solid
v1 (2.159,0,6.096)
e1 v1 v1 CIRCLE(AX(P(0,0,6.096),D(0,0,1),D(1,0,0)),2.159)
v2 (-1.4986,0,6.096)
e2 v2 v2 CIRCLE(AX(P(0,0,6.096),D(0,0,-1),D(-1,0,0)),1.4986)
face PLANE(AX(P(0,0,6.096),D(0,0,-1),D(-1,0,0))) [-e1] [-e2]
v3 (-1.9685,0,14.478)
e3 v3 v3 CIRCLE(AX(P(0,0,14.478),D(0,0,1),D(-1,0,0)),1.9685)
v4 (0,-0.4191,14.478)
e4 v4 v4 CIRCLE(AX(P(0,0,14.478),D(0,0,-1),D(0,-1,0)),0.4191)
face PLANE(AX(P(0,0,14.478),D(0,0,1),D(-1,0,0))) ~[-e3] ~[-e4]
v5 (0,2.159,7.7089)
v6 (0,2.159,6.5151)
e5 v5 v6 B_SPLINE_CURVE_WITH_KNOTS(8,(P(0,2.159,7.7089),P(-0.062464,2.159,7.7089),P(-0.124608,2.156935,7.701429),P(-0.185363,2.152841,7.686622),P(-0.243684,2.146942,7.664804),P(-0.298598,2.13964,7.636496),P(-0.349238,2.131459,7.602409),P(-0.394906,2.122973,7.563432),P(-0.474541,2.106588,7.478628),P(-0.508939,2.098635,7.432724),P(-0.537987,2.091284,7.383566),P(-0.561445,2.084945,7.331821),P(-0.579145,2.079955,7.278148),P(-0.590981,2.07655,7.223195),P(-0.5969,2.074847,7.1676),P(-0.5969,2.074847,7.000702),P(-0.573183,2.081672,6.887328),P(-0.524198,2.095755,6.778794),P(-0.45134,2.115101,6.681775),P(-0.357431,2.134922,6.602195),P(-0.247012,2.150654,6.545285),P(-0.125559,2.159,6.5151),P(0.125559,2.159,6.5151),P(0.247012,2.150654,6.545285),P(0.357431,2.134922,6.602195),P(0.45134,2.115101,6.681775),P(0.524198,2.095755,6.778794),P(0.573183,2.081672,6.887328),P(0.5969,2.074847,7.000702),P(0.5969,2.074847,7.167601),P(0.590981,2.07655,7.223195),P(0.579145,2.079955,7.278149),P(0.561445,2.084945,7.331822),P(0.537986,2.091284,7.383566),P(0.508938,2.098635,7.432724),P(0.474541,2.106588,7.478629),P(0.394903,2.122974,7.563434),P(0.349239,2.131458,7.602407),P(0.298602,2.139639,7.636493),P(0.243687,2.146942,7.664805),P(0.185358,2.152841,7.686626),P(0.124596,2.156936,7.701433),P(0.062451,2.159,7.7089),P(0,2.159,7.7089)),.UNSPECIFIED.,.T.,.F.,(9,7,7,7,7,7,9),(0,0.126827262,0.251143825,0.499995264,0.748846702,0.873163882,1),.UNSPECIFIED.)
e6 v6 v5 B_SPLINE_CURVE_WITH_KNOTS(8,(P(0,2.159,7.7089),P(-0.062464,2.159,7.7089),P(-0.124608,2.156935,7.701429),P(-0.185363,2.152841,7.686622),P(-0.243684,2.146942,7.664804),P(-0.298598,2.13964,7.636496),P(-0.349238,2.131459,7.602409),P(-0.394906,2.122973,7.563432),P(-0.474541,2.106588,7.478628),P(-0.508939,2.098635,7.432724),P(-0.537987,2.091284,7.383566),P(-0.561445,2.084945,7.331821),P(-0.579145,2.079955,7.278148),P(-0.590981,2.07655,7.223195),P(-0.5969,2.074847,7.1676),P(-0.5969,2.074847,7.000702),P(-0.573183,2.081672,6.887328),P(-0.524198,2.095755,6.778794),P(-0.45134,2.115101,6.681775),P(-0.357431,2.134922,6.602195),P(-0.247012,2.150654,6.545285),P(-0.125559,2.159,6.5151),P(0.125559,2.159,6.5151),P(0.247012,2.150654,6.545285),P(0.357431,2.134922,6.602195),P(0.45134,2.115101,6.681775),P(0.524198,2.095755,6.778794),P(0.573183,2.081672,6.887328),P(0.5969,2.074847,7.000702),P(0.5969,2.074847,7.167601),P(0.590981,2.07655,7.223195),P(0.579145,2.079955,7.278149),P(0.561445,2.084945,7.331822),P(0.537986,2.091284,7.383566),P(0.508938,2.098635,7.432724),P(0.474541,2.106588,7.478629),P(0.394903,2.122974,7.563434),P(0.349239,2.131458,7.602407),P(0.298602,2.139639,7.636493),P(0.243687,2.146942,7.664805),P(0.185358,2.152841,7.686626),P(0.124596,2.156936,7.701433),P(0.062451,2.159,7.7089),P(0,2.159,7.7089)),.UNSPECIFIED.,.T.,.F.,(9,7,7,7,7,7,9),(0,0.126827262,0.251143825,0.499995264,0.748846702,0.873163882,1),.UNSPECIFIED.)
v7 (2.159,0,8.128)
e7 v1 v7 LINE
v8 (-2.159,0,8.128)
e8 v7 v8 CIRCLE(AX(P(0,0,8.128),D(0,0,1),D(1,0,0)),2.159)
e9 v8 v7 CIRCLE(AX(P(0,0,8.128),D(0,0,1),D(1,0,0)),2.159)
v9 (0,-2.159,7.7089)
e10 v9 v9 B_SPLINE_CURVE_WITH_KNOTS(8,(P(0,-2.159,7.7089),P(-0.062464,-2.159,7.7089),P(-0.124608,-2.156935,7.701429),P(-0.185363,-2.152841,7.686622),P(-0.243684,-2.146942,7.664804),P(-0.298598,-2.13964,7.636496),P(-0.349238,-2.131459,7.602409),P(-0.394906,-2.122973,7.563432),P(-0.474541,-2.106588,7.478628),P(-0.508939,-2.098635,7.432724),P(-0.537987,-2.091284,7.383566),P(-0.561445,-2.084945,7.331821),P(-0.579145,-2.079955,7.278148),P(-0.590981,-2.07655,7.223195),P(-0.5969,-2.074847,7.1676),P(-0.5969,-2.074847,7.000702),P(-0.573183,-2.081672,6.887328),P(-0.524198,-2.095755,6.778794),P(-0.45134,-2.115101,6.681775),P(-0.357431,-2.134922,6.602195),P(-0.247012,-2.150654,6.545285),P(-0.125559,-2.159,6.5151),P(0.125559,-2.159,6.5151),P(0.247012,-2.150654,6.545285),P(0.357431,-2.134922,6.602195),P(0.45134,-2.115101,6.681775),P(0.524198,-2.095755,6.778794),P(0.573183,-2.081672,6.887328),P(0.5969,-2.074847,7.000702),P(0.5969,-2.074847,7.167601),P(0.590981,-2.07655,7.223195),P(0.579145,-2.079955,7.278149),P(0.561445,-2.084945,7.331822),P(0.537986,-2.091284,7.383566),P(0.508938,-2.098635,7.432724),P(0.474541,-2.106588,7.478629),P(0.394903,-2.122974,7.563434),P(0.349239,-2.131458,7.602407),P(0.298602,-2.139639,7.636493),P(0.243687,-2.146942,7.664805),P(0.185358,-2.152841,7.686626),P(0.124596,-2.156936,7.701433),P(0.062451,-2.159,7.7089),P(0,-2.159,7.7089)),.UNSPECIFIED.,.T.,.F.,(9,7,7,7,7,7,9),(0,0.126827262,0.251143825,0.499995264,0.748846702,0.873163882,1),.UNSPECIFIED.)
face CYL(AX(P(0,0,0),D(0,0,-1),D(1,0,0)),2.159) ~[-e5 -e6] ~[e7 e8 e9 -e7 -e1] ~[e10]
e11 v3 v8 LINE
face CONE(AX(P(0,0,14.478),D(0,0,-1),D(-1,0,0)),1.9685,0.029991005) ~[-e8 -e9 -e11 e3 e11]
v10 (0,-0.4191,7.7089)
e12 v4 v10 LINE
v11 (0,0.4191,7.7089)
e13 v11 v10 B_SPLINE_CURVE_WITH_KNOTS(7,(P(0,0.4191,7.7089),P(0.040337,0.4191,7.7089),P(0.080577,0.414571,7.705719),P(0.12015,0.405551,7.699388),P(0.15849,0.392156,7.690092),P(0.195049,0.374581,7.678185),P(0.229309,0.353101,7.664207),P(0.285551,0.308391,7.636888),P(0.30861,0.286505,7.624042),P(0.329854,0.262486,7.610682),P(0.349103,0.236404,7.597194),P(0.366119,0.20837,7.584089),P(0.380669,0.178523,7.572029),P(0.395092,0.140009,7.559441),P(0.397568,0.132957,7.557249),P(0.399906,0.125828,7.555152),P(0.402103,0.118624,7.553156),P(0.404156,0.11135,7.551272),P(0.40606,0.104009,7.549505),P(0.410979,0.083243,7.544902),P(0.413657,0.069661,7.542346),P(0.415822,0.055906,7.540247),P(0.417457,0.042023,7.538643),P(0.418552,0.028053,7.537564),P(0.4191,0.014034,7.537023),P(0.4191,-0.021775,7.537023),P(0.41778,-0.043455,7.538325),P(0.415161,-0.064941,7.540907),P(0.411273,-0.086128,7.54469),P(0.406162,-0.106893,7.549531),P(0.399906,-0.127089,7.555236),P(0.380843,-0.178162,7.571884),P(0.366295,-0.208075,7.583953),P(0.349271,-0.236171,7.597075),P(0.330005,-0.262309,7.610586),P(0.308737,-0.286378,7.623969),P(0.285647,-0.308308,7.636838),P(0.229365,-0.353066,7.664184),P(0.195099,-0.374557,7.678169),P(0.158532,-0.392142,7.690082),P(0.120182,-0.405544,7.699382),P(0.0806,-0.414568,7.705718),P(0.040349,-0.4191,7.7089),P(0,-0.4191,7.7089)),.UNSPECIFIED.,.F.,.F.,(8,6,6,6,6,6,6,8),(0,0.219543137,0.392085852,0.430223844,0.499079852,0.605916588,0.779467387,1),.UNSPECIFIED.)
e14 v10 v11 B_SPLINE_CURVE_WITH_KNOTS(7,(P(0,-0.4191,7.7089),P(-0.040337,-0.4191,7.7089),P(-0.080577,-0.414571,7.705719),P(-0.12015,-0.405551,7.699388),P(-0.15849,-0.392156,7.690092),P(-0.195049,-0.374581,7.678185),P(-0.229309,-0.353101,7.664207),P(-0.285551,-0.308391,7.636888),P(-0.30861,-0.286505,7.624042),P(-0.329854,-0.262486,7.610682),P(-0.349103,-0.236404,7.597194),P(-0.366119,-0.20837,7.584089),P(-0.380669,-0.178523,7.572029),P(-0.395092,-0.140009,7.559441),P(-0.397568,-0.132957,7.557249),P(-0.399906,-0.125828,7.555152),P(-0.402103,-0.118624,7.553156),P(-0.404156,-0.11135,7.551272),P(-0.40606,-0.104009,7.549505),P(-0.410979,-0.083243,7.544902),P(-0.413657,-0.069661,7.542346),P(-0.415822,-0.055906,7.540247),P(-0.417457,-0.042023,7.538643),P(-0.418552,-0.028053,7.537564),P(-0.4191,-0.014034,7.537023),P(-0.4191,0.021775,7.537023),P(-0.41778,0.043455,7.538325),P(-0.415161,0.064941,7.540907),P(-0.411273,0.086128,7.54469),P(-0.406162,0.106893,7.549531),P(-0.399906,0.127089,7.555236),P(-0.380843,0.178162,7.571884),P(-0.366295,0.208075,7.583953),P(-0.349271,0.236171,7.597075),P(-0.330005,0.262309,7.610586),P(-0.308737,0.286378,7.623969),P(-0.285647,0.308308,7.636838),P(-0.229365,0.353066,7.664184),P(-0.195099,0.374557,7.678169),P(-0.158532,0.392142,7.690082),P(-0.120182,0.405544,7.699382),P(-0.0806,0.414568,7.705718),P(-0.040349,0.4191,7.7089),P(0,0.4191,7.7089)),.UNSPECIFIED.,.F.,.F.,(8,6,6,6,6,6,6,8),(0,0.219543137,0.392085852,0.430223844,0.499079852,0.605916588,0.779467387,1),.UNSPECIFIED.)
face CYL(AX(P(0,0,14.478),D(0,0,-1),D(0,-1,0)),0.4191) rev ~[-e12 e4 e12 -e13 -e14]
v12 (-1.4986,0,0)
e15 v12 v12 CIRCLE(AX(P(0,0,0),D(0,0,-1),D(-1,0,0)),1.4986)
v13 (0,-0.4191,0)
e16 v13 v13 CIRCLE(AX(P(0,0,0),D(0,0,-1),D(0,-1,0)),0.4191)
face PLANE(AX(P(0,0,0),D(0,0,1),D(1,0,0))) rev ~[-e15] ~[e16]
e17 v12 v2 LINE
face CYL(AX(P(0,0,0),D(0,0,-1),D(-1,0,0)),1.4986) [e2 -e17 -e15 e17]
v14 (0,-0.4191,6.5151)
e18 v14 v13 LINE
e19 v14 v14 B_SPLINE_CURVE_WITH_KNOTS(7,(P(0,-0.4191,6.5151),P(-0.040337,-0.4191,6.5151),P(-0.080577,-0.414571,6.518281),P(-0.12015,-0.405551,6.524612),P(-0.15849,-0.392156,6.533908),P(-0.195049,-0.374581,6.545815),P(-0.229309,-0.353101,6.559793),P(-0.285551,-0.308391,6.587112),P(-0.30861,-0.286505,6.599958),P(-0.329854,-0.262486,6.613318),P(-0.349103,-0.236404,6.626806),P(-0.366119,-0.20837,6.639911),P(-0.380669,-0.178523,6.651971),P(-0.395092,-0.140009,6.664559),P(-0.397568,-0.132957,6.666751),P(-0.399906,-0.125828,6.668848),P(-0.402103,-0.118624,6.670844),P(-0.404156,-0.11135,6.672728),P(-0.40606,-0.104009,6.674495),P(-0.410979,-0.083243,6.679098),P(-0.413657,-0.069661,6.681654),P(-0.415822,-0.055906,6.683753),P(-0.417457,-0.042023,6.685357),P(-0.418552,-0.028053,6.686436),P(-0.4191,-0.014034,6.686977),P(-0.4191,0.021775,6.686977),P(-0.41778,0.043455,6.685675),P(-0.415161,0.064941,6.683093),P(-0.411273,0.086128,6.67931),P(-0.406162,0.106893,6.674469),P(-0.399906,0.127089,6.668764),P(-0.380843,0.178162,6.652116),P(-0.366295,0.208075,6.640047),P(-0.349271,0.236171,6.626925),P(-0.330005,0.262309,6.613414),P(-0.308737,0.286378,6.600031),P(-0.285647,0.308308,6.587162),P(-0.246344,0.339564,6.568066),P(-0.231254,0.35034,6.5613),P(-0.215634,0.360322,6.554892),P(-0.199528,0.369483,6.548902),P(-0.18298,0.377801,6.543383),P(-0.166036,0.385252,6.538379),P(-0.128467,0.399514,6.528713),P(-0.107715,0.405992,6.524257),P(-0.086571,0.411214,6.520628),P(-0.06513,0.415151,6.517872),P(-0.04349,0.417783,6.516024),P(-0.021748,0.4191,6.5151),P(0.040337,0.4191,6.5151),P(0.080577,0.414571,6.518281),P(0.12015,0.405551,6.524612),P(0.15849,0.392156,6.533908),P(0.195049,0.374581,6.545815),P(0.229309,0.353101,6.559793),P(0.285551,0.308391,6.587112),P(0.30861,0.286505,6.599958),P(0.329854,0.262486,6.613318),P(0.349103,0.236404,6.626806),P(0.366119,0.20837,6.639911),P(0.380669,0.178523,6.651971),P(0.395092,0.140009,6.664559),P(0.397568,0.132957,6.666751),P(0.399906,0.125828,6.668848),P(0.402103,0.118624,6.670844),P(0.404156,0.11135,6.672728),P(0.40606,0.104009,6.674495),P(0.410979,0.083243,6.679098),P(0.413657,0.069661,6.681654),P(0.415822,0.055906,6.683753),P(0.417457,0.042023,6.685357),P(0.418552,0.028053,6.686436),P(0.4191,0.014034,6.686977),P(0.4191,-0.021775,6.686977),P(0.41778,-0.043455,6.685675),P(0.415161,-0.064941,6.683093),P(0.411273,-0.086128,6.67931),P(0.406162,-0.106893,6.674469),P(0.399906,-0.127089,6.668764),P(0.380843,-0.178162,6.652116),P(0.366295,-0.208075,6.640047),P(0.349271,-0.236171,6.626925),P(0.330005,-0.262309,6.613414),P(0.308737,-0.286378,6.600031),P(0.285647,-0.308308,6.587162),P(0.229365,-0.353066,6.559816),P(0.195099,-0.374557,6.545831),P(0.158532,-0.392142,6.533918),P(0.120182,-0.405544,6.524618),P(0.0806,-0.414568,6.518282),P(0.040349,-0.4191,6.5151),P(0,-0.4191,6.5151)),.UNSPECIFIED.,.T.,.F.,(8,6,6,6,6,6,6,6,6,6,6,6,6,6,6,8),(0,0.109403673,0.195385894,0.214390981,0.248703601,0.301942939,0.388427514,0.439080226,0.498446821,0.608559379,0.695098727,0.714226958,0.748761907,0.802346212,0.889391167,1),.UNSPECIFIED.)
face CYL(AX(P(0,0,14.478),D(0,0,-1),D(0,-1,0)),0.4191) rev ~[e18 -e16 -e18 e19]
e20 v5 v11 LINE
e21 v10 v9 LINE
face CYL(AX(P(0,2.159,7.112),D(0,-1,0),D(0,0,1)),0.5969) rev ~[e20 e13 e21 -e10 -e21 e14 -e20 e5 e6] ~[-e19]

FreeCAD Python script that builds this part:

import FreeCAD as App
import Part
import Sketcher
from FreeCAD import Vector
Q = App.Units.Quantity


def add_polygon(sketch, points):
    """Adds a closed chain of lines whose ends are joined by coincident constraints."""
    first, n = sketch.GeometryCount, len(points)
    for a, b in zip(points, points[1:] + points[:1]):
        sketch.addGeometry(Part.LineSegment(App.Vector(*a, 0), App.Vector(*b, 0)), False)
    for i in range(n):
        sketch.addConstraint(Sketcher.Constraint("Coincident", first + i, 2, first + (i + 1) % n, 1))

doc = App.newDocument("Part")
body = doc.addObject("PartDesign::Body", "Body")

# Sketch on XY plane
sketch1 = body.newObject("Sketcher::SketchObject", "Sketch")
sketch1.AttachmentSupport = (doc.getObject("XY_Plane"), [""])
sketch1.MapMode = "FlatFace"
sketch1.addGeometry(Part.Circle(Vector(0, 0, 0), Vector(0, 0, 1), 2.159), False)
sketch1.addConstraint([
    Sketcher.Constraint("Coincident", 0, 3, -1, 1),
    Sketcher.Constraint("Diameter", 0, Q("0.17 in")),
])
pad1 = body.newObject("PartDesign::Pad", "Pad")
pad1.Profile = sketch1
pad1.Length = Q("0.32 in")

# Sketch on XY plane
sketch2 = body.newObject("Sketcher::SketchObject", "Sketch001")
sketch2.AttachmentSupport = (doc.getObject("XY_Plane"), [""])
sketch2.MapMode = "FlatFace"
sketch2.addGeometry([
    Part.Circle(Vector(0, 0, 0), Vector(0, 0, 1), 2.159),
    Part.Circle(Vector(0, 0, 0), Vector(0, 0, 1), 1.4986),
], False)
sketch2.addConstraint([
    Sketcher.Constraint("Coincident", 0, 3, -1, 1),
    Sketcher.Constraint("Coincident", 1, 3, -1, 1),
    Sketcher.Constraint("Diameter", 1, Q("0.118 in")),
    Sketcher.Constraint("Diameter", 0, Q("0.17 in")),
])
pocket1 = body.newObject("PartDesign::Pocket", "Pocket")
pocket1.Profile = sketch2
pocket1.Length = Q("0.24 in")
pocket1.Reversed = True

# Sketch on XZ plane
sketch3 = body.newObject("Sketcher::SketchObject", "Sketch002")
sketch3.AttachmentSupport = (doc.getObject("XZ_Plane"), [""])
sketch3.MapMode = "FlatFace"
add_polygon(sketch3, [(0, 14.478), (0, 8.128), (-2.159, 8.128), (-1.9685, 14.478)])  # lines 0-3
sketch3.addConstraint([
    Sketcher.Constraint("Vertical", 0),
    Sketcher.Constraint("Horizontal", 1),
    Sketcher.Constraint("Horizontal", 3),
    Sketcher.Constraint("PointOnObject", 0, 2, -2),
    Sketcher.Constraint("DistanceY", 0, 2, 0, 1, Q("0.25 in")),
    Sketcher.Constraint("DistanceY", -1, 1, 0, 2, Q("0.32 in")),
    Sketcher.Constraint("DistanceX", 3, 1, 3, 2, Q("0.0775 in")),
    Sketcher.Constraint("DistanceX", 1, 2, 1, 1, Q("0.085 in")),
])
revolution = body.newObject("PartDesign::Revolution", "Revolution")
revolution.Profile = sketch3
revolution.ReferenceAxis = (sketch3, ["V_Axis"])
revolution.Angle = 360

# Sketch on XY plane
sketch4 = body.newObject("Sketcher::SketchObject", "Sketch003")
sketch4.AttachmentSupport = (doc.getObject("XY_Plane"), [""])
sketch4.MapMode = "FlatFace"
sketch4.AttachmentOffset = App.Placement(Vector(0, 0, 0.57 * 25.4), App.Rotation())
sketch4.addGeometry(Part.Circle(Vector(0, 0, 0), Vector(0, 0, 1), 0.4191), False)
sketch4.addConstraint([
    Sketcher.Constraint("Coincident", 0, 3, -1, 1),
    Sketcher.Constraint("Diameter", 0, Q("0.033 in")),
])
doc.recompute()
hole = body.newObject("PartDesign::Hole", "Hole")
hole.Profile = sketch4
hole.ThreadType = "None"
hole.Diameter = Q("0.033 in")
hole.DepthType = "ThroughAll"

# Sketch on XZ plane
sketch5 = body.newObject("Sketcher::SketchObject", "Sketch004")
sketch5.AttachmentSupport = (doc.getObject("XZ_Plane"), [""])
sketch5.MapMode = "FlatFace"
sketch5.AttachmentOffset = App.Placement(Vector(0, 0, -0.085 * 25.4), App.Rotation())
sketch5.addGeometry(Part.Circle(Vector(0, 7.112, 0), Vector(0, 0, 1), 0.5969), False)
sketch5.addConstraint([
    Sketcher.Constraint("PointOnObject", 0, 3, -2),
    Sketcher.Constraint("Diameter", 0, Q("0.047 in")),
    Sketcher.Constraint("DistanceY", -1, 1, 0, 3, Q("0.28 in")),
])
doc.recompute()
hole2 = body.newObject("PartDesign::Hole", "Hole001")
hole2.Profile = sketch5
hole2.ThreadType = "None"
hole2.Diameter = Q("0.047 in")
hole2.DepthType = "ThroughAll"
hole2.Reversed = True

doc.recompute()
